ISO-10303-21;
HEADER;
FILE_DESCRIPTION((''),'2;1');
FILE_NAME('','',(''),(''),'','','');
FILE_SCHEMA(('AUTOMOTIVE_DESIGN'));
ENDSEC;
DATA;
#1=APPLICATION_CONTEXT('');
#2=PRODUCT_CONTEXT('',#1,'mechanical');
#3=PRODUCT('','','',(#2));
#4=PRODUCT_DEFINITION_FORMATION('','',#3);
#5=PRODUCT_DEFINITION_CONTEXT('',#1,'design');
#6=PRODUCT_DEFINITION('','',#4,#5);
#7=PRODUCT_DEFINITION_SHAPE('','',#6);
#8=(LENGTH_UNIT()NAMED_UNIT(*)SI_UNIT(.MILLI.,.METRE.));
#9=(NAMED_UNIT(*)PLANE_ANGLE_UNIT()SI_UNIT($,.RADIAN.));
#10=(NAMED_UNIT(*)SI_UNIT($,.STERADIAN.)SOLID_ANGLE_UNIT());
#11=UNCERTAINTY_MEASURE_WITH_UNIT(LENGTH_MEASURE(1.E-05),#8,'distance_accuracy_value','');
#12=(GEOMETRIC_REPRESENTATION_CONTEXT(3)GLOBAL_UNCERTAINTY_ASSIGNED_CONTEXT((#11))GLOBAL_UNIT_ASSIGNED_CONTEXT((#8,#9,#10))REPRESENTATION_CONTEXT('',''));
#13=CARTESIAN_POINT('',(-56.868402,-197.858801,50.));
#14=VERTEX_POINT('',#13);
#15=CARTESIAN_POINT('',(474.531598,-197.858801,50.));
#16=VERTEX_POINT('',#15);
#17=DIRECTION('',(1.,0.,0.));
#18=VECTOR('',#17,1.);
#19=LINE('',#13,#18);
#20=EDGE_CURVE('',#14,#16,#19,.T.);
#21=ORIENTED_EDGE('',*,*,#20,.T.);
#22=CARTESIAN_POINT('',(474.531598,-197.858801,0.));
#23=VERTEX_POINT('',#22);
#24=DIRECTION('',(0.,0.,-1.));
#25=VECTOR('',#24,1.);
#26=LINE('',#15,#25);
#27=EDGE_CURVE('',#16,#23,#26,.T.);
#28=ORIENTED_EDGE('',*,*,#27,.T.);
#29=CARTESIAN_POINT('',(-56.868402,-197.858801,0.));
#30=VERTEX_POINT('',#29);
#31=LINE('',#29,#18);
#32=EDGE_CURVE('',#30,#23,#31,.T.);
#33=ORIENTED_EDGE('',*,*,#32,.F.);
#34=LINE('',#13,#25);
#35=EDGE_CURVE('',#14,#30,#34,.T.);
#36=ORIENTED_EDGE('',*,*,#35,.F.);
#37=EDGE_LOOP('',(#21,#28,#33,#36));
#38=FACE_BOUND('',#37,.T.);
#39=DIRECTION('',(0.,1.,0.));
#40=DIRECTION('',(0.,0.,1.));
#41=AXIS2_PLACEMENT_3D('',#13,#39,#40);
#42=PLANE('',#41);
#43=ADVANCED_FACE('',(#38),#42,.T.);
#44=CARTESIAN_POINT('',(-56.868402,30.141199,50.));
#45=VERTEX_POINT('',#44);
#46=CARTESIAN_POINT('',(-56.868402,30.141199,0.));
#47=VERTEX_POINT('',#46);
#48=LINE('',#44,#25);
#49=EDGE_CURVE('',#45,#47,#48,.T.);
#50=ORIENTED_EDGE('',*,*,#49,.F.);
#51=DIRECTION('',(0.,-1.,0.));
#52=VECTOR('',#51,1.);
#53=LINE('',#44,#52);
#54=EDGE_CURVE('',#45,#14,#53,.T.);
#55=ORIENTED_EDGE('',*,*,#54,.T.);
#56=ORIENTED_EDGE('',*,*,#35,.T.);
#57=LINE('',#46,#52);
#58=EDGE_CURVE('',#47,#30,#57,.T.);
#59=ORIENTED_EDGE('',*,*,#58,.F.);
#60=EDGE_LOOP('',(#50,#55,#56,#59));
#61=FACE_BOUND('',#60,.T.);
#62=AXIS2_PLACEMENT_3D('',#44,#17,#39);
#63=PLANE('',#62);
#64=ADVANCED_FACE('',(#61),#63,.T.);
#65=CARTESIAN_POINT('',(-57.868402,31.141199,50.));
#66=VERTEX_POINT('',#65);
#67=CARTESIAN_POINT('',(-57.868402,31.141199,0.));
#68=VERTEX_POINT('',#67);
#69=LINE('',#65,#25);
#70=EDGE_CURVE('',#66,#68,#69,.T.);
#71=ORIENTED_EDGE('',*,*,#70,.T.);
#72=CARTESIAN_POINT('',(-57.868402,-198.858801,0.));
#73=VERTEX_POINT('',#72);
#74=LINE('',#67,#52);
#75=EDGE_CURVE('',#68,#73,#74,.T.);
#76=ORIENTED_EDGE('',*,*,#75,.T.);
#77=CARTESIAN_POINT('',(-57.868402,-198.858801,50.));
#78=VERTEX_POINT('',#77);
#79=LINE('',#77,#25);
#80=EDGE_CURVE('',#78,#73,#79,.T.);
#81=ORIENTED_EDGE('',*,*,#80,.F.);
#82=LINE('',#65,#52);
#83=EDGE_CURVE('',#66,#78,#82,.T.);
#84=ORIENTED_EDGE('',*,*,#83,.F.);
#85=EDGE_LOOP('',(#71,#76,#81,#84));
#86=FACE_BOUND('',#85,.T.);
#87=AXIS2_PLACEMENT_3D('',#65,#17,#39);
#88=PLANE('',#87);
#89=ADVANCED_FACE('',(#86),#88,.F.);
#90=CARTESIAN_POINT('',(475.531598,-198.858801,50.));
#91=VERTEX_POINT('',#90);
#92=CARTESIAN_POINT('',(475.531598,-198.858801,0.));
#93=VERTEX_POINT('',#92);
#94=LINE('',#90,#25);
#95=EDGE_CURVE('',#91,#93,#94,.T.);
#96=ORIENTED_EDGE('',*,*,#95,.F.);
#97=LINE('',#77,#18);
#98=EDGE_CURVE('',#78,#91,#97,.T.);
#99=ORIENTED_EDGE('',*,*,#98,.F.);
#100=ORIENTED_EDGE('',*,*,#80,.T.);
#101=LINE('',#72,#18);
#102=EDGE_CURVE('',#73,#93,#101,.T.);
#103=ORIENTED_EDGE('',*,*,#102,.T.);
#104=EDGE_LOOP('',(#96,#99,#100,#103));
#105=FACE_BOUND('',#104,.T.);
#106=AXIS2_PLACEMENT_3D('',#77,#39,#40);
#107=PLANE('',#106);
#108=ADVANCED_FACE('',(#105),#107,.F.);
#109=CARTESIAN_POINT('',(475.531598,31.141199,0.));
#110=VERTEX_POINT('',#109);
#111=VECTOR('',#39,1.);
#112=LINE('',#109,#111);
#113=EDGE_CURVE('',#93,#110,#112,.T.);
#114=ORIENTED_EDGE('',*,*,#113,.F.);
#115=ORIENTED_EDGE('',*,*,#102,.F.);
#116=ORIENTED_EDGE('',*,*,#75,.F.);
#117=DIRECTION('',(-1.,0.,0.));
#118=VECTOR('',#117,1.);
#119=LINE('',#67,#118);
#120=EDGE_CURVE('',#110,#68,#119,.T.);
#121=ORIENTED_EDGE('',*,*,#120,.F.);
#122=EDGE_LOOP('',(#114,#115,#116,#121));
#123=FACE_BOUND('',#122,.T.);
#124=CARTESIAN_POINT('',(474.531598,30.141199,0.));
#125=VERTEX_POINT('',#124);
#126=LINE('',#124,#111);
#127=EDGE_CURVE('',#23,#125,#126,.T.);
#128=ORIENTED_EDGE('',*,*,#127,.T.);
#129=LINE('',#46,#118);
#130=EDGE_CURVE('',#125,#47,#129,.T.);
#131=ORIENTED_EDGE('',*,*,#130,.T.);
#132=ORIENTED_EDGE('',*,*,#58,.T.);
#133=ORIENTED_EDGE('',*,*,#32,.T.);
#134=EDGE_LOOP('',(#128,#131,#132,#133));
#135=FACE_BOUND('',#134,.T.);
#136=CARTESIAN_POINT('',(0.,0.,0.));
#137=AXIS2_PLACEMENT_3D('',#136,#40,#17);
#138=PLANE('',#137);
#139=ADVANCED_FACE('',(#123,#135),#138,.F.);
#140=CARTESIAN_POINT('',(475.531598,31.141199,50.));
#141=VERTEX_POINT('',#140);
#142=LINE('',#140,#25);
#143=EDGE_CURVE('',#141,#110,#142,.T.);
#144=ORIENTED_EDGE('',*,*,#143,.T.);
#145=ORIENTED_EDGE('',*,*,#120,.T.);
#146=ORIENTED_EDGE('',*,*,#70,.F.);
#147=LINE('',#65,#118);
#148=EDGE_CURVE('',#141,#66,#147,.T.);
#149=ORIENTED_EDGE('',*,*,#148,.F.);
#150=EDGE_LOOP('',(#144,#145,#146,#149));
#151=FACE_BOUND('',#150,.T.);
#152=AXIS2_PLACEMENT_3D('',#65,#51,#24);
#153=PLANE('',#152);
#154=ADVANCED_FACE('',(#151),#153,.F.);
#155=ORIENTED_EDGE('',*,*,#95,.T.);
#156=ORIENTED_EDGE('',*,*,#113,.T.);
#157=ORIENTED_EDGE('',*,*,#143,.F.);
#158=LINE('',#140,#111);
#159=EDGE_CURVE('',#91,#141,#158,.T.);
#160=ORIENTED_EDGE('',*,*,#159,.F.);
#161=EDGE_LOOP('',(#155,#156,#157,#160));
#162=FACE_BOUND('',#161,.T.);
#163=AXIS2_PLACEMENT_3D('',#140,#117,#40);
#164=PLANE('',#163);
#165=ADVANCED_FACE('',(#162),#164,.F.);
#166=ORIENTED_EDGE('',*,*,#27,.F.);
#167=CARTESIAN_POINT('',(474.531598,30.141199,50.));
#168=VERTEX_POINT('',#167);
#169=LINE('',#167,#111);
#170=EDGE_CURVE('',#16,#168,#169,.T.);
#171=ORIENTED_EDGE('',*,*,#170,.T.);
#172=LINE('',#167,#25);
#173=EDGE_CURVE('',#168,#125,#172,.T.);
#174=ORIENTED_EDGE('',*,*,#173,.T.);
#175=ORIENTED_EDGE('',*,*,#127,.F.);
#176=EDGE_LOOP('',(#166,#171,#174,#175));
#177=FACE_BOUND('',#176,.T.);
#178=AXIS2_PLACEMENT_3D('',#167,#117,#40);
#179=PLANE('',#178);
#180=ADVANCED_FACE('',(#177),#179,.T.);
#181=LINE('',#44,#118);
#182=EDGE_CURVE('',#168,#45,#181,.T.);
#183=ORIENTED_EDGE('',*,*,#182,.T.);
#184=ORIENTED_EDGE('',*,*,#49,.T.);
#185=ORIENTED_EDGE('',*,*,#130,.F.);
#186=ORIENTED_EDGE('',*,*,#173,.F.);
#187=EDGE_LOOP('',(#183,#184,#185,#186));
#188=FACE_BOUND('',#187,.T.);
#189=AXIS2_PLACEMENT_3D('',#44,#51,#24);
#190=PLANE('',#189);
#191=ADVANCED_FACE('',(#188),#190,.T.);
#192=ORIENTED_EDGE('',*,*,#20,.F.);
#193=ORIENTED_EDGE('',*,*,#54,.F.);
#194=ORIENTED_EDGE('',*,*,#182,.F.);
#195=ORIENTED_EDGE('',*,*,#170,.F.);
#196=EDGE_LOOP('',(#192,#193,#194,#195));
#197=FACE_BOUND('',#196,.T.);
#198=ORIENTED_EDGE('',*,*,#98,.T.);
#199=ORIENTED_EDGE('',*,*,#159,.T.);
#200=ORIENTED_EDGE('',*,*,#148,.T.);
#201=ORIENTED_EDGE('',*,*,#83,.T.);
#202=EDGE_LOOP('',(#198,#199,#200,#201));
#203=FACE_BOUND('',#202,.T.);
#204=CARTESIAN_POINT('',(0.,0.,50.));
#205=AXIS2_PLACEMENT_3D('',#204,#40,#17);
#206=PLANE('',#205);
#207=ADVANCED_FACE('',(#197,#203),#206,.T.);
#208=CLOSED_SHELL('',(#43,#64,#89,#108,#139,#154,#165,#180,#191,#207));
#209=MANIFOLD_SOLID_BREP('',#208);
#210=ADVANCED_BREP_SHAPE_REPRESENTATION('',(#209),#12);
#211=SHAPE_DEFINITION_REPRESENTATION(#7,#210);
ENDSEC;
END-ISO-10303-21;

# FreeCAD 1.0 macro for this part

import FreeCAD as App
import Part
import Sketcher
Q = App.Units.Quantity


def add_polygon(sketch, points):
    """Adds a closed chain of lines whose ends are joined by coincident constraints."""
    first, n = sketch.GeometryCount, len(points)
    for a, b in zip(points, points[1:] + points[:1]):
        sketch.addGeometry(Part.LineSegment(App.Vector(*a, 0), App.Vector(*b, 0)), False)
    for i in range(n):
        sketch.addConstraint(Sketcher.Constraint("Coincident", first + i, 2, first + (i + 1) % n, 1))

doc = App.newDocument("Part")
body = doc.addObject("PartDesign::Body", "Body")

sketch1 = body.newObject("Sketcher::SketchObject", "Sketch")
sketch1.AttachmentSupport = (doc.getObject("XY_Plane"), [""])
sketch1.MapMode = "FlatFace"
add_polygon(sketch1, [(-57.868402, 31.141199), (-57.868402, -198.858801), (475.531598, -198.858801), (475.531598, 31.141199)])
add_polygon(sketch1, [(474.531598, -197.858801), (-56.868402, -197.858801), (-56.868402, 30.141199), (474.531598, 30.141199)])
sketch1.addConstraint(Sketcher.Constraint("Vertical", 0))
sketch1.addConstraint(Sketcher.Constraint("Horizontal", 1))
sketch1.addConstraint(Sketcher.Constraint("Vertical", 2))
sketch1.addConstraint(Sketcher.Constraint("Horizontal", 3))
sketch1.addConstraint(Sketcher.Constraint("Horizontal", 4))
sketch1.addConstraint(Sketcher.Constraint("Vertical", 5))
sketch1.addConstraint(Sketcher.Constraint("Horizontal", 6))
sketch1.addConstraint(Sketcher.Constraint("Vertical", 7))
sketch1.addConstraint(Sketcher.Constraint("DistanceY", 0, 2, 0, 1, Q("230 mm")))
sketch1.addConstraint(Sketcher.Constraint("DistanceY", 5, 1, 5, 2, Q("228 mm")))
sketch1.addConstraint(Sketcher.Constraint("DistanceX", 1, 1, 1, 2, Q("533.4 mm")))
sketch1.addConstraint(Sketcher.Constraint("DistanceX", 4, 2, 4, 1, Q("531.4 mm")))
sketch1.addConstraint(Sketcher.Constraint("DistanceX", 0, 2, 4, 2, Q("1 mm")))
sketch1.addConstraint(Sketcher.Constraint("DistanceY", 0, 2, 4, 2, Q("1 mm")))
sketch1.addConstraint(Sketcher.Constraint("DistanceY", 0, 2, -1, 1, Q("198.858801 mm")))
sketch1.addConstraint(Sketcher.Constraint("DistanceX", 0, 2, -1, 1, Q("57.868402 mm")))
pad1 = body.newObject("PartDesign::Pad", "Pad")
pad1.Profile = sketch1
pad1.Length = 50

doc.recompute()
